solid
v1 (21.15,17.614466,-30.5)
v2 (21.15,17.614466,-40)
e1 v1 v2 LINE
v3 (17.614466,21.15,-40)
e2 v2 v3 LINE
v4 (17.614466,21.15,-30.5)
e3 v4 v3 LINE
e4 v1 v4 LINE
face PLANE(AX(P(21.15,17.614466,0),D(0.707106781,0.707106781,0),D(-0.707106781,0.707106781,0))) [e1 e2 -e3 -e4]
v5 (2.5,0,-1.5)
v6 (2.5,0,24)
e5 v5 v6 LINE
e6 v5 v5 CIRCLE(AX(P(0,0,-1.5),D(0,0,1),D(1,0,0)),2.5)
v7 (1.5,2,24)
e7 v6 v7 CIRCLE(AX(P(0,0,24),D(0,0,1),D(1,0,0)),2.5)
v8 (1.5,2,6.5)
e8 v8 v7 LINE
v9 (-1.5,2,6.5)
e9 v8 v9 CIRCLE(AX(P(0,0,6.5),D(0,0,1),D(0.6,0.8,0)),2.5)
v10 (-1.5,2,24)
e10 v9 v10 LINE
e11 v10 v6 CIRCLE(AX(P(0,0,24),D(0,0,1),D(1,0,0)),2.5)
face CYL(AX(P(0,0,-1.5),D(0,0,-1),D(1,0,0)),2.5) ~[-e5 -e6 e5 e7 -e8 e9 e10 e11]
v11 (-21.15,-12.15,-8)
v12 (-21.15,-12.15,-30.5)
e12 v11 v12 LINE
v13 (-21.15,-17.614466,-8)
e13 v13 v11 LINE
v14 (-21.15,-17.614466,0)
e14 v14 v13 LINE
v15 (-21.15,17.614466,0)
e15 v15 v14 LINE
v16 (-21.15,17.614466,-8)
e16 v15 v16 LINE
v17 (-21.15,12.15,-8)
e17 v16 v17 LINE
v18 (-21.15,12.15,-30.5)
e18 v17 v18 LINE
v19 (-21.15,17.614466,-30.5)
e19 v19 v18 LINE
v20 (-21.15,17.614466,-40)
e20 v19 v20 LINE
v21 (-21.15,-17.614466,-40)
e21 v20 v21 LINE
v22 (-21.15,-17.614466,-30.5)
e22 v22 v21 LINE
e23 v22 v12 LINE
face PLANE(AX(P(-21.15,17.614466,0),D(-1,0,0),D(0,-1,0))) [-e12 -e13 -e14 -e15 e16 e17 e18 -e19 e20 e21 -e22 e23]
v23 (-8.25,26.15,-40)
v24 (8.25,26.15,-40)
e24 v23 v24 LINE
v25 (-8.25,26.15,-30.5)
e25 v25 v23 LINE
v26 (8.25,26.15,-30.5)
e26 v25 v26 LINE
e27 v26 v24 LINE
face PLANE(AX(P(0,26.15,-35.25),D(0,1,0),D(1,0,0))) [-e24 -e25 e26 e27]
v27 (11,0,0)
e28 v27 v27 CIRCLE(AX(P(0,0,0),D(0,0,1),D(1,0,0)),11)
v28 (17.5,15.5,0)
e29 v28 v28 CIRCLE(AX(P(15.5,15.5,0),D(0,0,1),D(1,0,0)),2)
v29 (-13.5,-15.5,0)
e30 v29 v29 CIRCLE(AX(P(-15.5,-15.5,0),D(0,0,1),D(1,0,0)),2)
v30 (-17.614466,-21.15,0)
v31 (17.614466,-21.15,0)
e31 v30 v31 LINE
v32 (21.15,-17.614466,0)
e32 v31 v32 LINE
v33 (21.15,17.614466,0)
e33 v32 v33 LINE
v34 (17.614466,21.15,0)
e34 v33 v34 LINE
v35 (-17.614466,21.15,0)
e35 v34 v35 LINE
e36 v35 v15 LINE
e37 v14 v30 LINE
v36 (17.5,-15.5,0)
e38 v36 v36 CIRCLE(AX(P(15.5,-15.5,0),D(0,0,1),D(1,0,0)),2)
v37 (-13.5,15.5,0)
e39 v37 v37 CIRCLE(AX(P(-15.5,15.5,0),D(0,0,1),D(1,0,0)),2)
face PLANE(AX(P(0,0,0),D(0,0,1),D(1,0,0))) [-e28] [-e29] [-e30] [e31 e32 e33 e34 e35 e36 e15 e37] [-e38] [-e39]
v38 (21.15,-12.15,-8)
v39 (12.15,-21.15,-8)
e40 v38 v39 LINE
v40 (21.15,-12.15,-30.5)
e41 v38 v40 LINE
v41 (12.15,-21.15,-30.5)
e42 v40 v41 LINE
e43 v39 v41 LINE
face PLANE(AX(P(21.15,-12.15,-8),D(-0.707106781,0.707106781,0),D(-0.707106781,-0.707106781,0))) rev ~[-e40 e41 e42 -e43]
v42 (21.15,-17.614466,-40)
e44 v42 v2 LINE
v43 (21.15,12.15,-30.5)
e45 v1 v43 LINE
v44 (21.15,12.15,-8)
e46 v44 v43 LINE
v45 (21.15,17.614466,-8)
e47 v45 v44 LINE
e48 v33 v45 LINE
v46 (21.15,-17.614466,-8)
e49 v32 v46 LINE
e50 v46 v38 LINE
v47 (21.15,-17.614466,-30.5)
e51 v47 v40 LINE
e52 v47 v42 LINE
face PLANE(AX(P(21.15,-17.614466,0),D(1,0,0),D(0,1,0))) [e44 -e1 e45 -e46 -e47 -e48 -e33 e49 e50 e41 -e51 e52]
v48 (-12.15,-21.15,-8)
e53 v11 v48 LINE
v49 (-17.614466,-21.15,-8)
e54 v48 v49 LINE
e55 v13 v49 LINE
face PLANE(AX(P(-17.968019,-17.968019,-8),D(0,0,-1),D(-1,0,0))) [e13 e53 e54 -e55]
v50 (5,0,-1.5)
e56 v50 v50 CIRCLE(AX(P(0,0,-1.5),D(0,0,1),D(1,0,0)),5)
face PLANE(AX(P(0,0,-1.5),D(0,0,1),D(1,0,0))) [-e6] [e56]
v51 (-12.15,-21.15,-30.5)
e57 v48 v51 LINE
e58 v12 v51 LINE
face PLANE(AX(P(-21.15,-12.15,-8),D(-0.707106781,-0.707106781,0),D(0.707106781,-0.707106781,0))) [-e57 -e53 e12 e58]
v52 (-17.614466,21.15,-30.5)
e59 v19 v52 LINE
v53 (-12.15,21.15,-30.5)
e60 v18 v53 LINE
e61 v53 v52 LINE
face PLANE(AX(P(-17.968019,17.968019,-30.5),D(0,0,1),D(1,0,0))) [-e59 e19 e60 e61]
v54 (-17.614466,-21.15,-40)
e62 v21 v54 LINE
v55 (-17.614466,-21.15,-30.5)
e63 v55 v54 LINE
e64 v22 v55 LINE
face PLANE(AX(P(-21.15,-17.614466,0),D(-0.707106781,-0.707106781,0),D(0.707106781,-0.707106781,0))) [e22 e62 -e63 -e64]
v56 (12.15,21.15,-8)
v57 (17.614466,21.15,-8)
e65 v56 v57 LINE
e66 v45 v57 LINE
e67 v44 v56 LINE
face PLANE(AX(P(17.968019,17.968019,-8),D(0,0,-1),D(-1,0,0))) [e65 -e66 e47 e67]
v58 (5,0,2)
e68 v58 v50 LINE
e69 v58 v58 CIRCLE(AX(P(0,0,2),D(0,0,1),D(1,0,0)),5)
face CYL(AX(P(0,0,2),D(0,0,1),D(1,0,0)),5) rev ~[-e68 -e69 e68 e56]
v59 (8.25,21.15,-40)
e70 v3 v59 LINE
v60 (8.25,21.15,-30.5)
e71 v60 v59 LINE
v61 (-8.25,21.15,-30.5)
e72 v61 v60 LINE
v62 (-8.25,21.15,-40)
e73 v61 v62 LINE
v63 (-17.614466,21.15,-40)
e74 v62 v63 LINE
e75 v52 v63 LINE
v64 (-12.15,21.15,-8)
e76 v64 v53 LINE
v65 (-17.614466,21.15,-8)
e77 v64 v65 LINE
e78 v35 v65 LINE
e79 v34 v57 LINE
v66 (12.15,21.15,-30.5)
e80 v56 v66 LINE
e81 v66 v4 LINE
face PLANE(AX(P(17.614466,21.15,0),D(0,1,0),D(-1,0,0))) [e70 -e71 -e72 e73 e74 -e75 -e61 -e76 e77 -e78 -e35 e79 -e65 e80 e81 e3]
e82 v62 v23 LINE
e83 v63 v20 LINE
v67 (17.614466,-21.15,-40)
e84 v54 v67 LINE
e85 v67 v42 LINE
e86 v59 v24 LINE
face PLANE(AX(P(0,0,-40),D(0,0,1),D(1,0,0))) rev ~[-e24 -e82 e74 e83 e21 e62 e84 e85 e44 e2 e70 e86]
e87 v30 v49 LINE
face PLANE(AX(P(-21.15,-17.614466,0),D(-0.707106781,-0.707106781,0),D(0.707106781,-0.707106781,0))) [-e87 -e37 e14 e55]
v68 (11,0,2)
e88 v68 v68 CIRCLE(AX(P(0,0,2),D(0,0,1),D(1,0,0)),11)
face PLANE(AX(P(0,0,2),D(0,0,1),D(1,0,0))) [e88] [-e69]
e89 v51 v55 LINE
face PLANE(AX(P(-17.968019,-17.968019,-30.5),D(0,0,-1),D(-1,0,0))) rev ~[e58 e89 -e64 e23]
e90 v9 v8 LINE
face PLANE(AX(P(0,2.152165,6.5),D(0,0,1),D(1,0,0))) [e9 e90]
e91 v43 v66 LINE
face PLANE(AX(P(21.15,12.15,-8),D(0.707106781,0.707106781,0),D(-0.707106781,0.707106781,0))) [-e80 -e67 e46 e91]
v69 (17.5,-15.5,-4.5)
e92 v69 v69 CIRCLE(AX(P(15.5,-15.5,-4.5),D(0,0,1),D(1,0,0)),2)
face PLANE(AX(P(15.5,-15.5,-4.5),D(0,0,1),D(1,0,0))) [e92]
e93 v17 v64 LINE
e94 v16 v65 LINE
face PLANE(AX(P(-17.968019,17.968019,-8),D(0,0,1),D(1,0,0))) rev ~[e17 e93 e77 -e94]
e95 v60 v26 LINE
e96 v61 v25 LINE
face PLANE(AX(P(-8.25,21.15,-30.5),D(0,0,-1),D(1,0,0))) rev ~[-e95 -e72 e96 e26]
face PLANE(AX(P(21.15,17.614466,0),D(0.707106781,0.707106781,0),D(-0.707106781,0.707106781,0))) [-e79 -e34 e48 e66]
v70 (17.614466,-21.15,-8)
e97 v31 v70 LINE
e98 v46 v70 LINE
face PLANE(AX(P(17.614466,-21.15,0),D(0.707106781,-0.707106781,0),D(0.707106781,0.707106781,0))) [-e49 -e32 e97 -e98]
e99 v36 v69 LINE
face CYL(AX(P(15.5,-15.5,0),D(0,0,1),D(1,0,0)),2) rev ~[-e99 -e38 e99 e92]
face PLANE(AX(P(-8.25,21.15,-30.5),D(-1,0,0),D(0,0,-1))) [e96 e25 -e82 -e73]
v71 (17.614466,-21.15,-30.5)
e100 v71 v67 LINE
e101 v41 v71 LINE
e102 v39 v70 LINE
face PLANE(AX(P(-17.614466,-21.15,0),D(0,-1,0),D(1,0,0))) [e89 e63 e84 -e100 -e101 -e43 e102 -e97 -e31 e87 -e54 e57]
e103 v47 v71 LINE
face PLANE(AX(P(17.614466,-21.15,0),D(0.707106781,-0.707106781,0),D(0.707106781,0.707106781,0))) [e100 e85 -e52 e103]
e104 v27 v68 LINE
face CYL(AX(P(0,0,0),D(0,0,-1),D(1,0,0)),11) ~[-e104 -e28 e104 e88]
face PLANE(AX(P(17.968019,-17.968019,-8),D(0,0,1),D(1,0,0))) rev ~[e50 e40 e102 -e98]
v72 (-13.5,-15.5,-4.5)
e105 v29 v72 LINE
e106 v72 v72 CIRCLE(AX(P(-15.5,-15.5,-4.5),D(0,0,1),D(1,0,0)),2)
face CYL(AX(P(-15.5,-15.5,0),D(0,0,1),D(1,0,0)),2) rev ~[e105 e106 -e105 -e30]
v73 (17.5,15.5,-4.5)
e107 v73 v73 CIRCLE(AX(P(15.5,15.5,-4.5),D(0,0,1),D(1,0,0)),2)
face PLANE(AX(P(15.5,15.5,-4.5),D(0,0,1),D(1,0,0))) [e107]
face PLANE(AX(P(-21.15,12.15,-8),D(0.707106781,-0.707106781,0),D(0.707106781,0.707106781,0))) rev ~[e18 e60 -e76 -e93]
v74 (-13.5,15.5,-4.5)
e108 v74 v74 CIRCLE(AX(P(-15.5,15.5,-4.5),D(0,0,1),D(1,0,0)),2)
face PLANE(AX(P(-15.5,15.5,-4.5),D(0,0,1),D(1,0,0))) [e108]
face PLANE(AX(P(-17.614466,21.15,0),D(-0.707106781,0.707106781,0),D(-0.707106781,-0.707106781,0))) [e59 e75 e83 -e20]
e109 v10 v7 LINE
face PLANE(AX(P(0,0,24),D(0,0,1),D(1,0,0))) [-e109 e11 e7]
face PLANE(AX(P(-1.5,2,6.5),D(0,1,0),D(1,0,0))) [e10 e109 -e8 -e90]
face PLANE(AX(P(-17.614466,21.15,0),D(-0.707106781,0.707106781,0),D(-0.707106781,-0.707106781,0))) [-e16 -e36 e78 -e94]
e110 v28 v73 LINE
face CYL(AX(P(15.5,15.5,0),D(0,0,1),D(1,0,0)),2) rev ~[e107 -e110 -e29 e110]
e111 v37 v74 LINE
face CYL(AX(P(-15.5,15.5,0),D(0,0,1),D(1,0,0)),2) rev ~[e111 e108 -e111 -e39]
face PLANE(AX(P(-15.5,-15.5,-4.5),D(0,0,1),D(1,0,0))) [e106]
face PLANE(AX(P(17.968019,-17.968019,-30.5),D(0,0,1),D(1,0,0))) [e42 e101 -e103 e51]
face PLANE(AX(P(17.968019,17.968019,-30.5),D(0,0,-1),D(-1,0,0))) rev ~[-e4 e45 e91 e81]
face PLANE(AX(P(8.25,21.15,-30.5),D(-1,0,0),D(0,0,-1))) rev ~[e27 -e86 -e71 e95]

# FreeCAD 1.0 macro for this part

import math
import FreeCAD as App
import Part
import Sketcher
from FreeCAD import Vector


def add_polygon(sketch, points):
    """Adds a closed chain of lines whose ends are joined by coincident constraints."""
    first, n = sketch.GeometryCount, len(points)
    for a, b in zip(points, points[1:] + points[:1]):
        sketch.addGeometry(Part.LineSegment(App.Vector(*a, 0), App.Vector(*b, 0)), False)
    for i in range(n):
        sketch.addConstraint(Sketcher.Constraint("Coincident", first + i, 2, first + (i + 1) % n, 1))

doc = App.newDocument("Part")
params = doc.addObject("Spreadsheet::Sheet", "Params")
for row, (alias, value) in enumerate([
    ("sketch1_length", "5 mm"),
    ("pad1_length", "40 mm"),
    ("sketch2_diameter", "22 mm"),
    ("pad2_length", "2 mm"),
    ("sketch3_diameter", "10 mm"),
    ("pocket1_length", "3.5 mm"),
    ("sketch4_diameter", "5 mm"),
    ("pad3_length", "25.5 mm"),
    ("sketch5_diameter", "4 mm"),
    ("pocket2_length", "4.5 mm"),
    ("sketch6_radius", "2.5 mm"),
    ("sketch6_width", "3 mm"),
    ("pocket3_length", "17.5 mm"),
    ("sketch7_width", "9 mm"),
    ("pocket4_length", "22.5 mm"),
    ("sketch8_width", "16.5 mm"),
    ("sketch8_height", "9.5 mm"),
    ("pad4_length", "5 mm"),
], start=1):
    params.set(f"A{row}", alias)
    params.set(f"B{row}", "=" + value)
    params.setAlias(f"B{row}", alias)

body = doc.addObject("PartDesign::Body", "Body")

# Sketch on XY plane
sketch1 = body.newObject("Sketcher::SketchObject", "Sketch")
sketch1.AttachmentSupport = (doc.getObject("XY_Plane"), [""])
sketch1.MapMode = "FlatFace"
add_polygon(sketch1, [(-18, -21), (18, -21), (21, -18), (21, 18), (18, 21), (-18, 21), (-21, 18), (-21, -18)])  # lines 0-7
sketch1.addConstraint(Sketcher.Constraint("Horizontal", 0))
sketch1.addConstraint(Sketcher.Constraint("Vertical", 2))
sketch1.addConstraint(Sketcher.Constraint("Horizontal", 4))
sketch1.addConstraint(Sketcher.Constraint("Vertical", 6))
sketch1.addConstraint(Sketcher.Constraint("Symmetric", 0, 2, 4, 2, -1, 1))
sketch1.addConstraint(Sketcher.Constraint("Symmetric", 1, 2, 5, 2, -1, 1))
sketch1.addConstraint(Sketcher.Constraint("Perpendicular", 1, 3))
sketch1.addConstraint(Sketcher.Constraint("Perpendicular", 5, 7))
sketch1.addConstraint(Sketcher.Constraint("Horizontal", 2, 2, 5, 2))
sketch1.addConstraint(Sketcher.Constraint("Horizontal", 1, 2, 6, 2))
sketch1.addConstraint(Sketcher.Constraint("Vertical", 0, 2, 3, 2))
sketch1.addConstraint(Sketcher.Constraint("Equal", 4, 2))
sketch1.addConstraint(Sketcher.Constraint("Distance", 1, 5.0))
sketch1.addConstraint(Sketcher.Constraint("DistanceY", 0, 2, 3, 2, 42.3))
sketch1.setExpression("Constraints[20]", "Params.sketch1_length")
pad1 = body.newObject("PartDesign::Pad", "Pad")
pad1.Profile = sketch1
pad1.setExpression("Length", "Params.pad1_length")
pad1.Reversed = True

# Sketch on XY plane
sketch2 = body.newObject("Sketcher::SketchObject", "Sketch001")
sketch2.AttachmentSupport = (doc.getObject("XY_Plane"), [""])
sketch2.MapMode = "FlatFace"
sketch2.addGeometry(Part.Circle(Vector(0, 0, 0), Vector(0, 0, 1), 11), False)
sketch2.addConstraint(Sketcher.Constraint("Coincident", 0, 3, -1, 1))
sketch2.addConstraint(Sketcher.Constraint("Diameter", 0, 22.0))
sketch2.setExpression("Constraints[1]", "Params.sketch2_diameter")
pad2 = body.newObject("PartDesign::Pad", "Pad001")
pad2.Profile = sketch2
pad2.setExpression("Length", "Params.pad2_length")

# Sketch on XY plane
sketch3 = body.newObject("Sketcher::SketchObject", "Sketch002")
sketch3.AttachmentSupport = (doc.getObject("XY_Plane"), [""])
sketch3.MapMode = "FlatFace"
sketch3.AttachmentOffset = App.Placement(Vector(0, 0, 2), App.Rotation())
sketch3.addGeometry(Part.Circle(Vector(0, 0, 0), Vector(0, 0, 1), 5), False)
sketch3.addConstraint(Sketcher.Constraint("Coincident", 0, 3, -1, 1))
sketch3.addConstraint(Sketcher.Constraint("Diameter", 0, 10.0))
sketch3.setExpression("Constraints[1]", "Params.sketch3_diameter")
pocket1 = body.newObject("PartDesign::Pocket", "Pocket")
pocket1.Profile = sketch3
pocket1.setExpression("Length", "Params.pocket1_length")

# Sketch on XY plane
sketch4 = body.newObject("Sketcher::SketchObject", "Sketch003")
sketch4.AttachmentSupport = (doc.getObject("XY_Plane"), [""])
sketch4.MapMode = "FlatFace"
sketch4.AttachmentOffset = App.Placement(Vector(0, 0, -1.5), App.Rotation())
sketch4.addGeometry(Part.Circle(Vector(0, 0, 0), Vector(0, 0, 1), 2.5), False)
sketch4.addConstraint(Sketcher.Constraint("Coincident", 0, 3, -1, 1))
sketch4.addConstraint(Sketcher.Constraint("Diameter", 0, 5.0))
sketch4.setExpression("Constraints[1]", "Params.sketch4_diameter")
pad3 = body.newObject("PartDesign::Pad", "Pad002")
pad3.Profile = sketch4
pad3.setExpression("Length", "Params.pad3_length")

# Sketch on XY plane
sketch5 = body.newObject("Sketcher::SketchObject", "Sketch004")
sketch5.AttachmentSupport = (doc.getObject("XY_Plane"), [""])
sketch5.MapMode = "FlatFace"
sketch5.addGeometry(Part.Circle(Vector(-15.5, 15.5, 0), Vector(0, 0, 1), 2), False)
sketch5.addGeometry(Part.Circle(Vector(15.5, 15.5, 0), Vector(0, 0, 1), 2), False)
sketch5.addGeometry(Part.Circle(Vector(15.5, -15.5, 0), Vector(0, 0, 1), 2), False)
sketch5.addGeometry(Part.Circle(Vector(-15.5, -15.5, 0), Vector(0, 0, 1), 2), False)
sketch5.addConstraint(Sketcher.Constraint("Equal", 0, 1))
sketch5.addConstraint(Sketcher.Constraint("Equal", 1, 2))
sketch5.addConstraint(Sketcher.Constraint("Equal", 2, 3))
sketch5.addConstraint(Sketcher.Constraint("Symmetric", 0, 3, 2, 3, -1, 1))
sketch5.addConstraint(Sketcher.Constraint("Symmetric", 1, 3, 3, 3, -1, 1))
sketch5.addConstraint(Sketcher.Constraint("Symmetric", 0, 3, 1, 3, -2))
sketch5.addConstraint(Sketcher.Constraint("Diameter", 0, 4.0))
sketch5.addConstraint(Sketcher.Constraint("DistanceX", 0, 3, 1, 3, 31.0))
sketch5.addConstraint(Sketcher.Constraint("DistanceY", 2, 3, 1, 3, 31.0))
sketch5.setExpression("Constraints[6]", "Params.sketch5_diameter")
pocket2 = body.newObject("PartDesign::Pocket", "Pocket001")
pocket2.Profile = sketch5
pocket2.setExpression("Length", "Params.pocket2_length")

# Sketch on XY plane
sketch6 = body.newObject("Sketcher::SketchObject", "Sketch005")
sketch6.AttachmentSupport = (doc.getObject("XY_Plane"), [""])
sketch6.MapMode = "FlatFace"
sketch6.AttachmentOffset = App.Placement(Vector(0, 0, 6.5), App.Rotation())
sketch6.addGeometry(Part.LineSegment(Vector(-1.5, 2, 0), Vector(1.5, 2, 0)), False)
sketch6.addGeometry(Part.ArcOfCircle(Part.Circle(Vector(0, 0, 0), Vector(0, 0, 1), 2.5), math.radians(53), math.radians(127)), False)
sketch6.addConstraint(Sketcher.Constraint("Coincident", 0, 1, 1, 2))
sketch6.addConstraint(Sketcher.Constraint("Coincident", 1, 1, 0, 2))
sketch6.addConstraint(Sketcher.Constraint("Horizontal", 0))
sketch6.addConstraint(Sketcher.Constraint("Coincident", 1, 3, -1, 1))
sketch6.addConstraint(Sketcher.Constraint("Radius", 1, 2.5))
sketch6.addConstraint(Sketcher.Constraint("DistanceX", 0, 1, 0, 2, 3.0))
sketch6.setExpression("Constraints[4]", "Params.sketch6_radius")
sketch6.setExpression("Constraints[5]", "Params.sketch6_width")
pocket3 = body.newObject("PartDesign::Pocket", "Pocket002")
pocket3.Profile = sketch6
pocket3.setExpression("Length", "Params.pocket3_length")
pocket3.Reversed = True

# Sketch on XY plane
sketch7 = body.newObject("Sketcher::SketchObject", "Sketch006")
sketch7.AttachmentSupport = (doc.getObject("XY_Plane"), [""])
sketch7.MapMode = "FlatFace"
sketch7.AttachmentOffset = App.Placement(Vector(0, 0, -8), App.Rotation())
add_polygon(sketch7, [(-21, 12), (-12, 21), (-21, 21)])  # lines 0-2
add_polygon(sketch7, [(21, 12), (21, 21), (12, 21)])  # lines 3-5
add_polygon(sketch7, [(21, -21), (21, -12), (12, -21)])  # lines 6-8
add_polygon(sketch7, [(-12, -21), (-21, -12), (-21, -21)])  # lines 9-11
sketch7.addConstraint(Sketcher.Constraint("Horizontal", 1))
sketch7.addConstraint(Sketcher.Constraint("Vertical", 2))
sketch7.addConstraint(Sketcher.Constraint("Vertical", 3))
sketch7.addConstraint(Sketcher.Constraint("Horizontal", 4))
sketch7.addConstraint(Sketcher.Constraint("Vertical", 6))
sketch7.addConstraint(Sketcher.Constraint("Horizontal", 8))
sketch7.addConstraint(Sketcher.Constraint("Vertical", 10))
sketch7.addConstraint(Sketcher.Constraint("Horizontal", 11))
sketch7.addConstraint(Sketcher.Constraint("Symmetric", 2, 2, 6, 2, -1, 1))
sketch7.addConstraint(Sketcher.Constraint("Symmetric", 0, 2, 7, 2, -1, 1))
sketch7.addConstraint(Sketcher.Constraint("Symmetric", 5, 2, 9, 2, -1, 1))
sketch7.addConstraint(Sketcher.Constraint("Symmetric", 4, 2, 11, 2, -1, 1))
sketch7.addConstraint(Sketcher.Constraint("Symmetric", 1, 2, 3, 2, -2))
sketch7.addConstraint(Sketcher.Constraint("Perpendicular", 0, 5))
sketch7.addConstraint(Sketcher.Constraint("Horizontal", 2, 2, 5, 2))
sketch7.addConstraint(Sketcher.Constraint("Vertical", 4, 2, 7, 2))
sketch7.addConstraint(Sketcher.Constraint("DistanceX", 1, 2, 1, 1, 9.0))
sketch7.addConstraint(Sketcher.Constraint("DistanceX", 0, 2, 3, 2, 33.3))
sketch7.addConstraint(Sketcher.Constraint("DistanceY", 6, 2, 5, 2, 24.3))
sketch7.setExpression("Constraints[28]", "Params.sketch7_width")
pocket4 = body.newObject("PartDesign::Pocket", "Pocket003")
pocket4.Profile = sketch7
pocket4.setExpression("Length", "Params.pocket4_length")

# Sketch on XZ plane
sketch8 = body.newObject("Sketcher::SketchObject", "Sketch007")
sketch8.AttachmentSupport = (doc.getObject("XZ_Plane"), [""])
sketch8.MapMode = "FlatFace"
sketch8.AttachmentOffset = App.Placement(Vector(0, 0, -21.15), App.Rotation())
add_polygon(sketch8, [(-8, -40), (-8, -30), (8, -30), (8, -40)])  # lines 0-3
sketch8.addConstraint(Sketcher.Constraint("Vertical", 0))
sketch8.addConstraint(Sketcher.Constraint("Horizontal", 1))
sketch8.addConstraint(Sketcher.Constraint("Vertical", 2))
sketch8.addConstraint(Sketcher.Constraint("Horizontal", 3))
sketch8.addConstraint(Sketcher.Constraint("DistanceX", 1, 1, 1, 2, 16.5))
sketch8.addConstraint(Sketcher.Constraint("DistanceY", 0, 1, 0, 2, 9.5))
sketch8.addConstraint(Sketcher.Constraint("DistanceY", 2, 2, -1, 1, 40.0))
sketch8.addConstraint(Sketcher.Constraint("DistanceX", 0, 2, -1, 1, 8.25))
sketch8.setExpression("Constraints[8]", "Params.sketch8_width")
sketch8.setExpression("Constraints[9]", "Params.sketch8_height")
pad4 = body.newObject("PartDesign::Pad", "Pad003")
pad4.Profile = sketch8
pad4.setExpression("Length", "Params.pad4_length")
pad4.Reversed = True

doc.recompute()
